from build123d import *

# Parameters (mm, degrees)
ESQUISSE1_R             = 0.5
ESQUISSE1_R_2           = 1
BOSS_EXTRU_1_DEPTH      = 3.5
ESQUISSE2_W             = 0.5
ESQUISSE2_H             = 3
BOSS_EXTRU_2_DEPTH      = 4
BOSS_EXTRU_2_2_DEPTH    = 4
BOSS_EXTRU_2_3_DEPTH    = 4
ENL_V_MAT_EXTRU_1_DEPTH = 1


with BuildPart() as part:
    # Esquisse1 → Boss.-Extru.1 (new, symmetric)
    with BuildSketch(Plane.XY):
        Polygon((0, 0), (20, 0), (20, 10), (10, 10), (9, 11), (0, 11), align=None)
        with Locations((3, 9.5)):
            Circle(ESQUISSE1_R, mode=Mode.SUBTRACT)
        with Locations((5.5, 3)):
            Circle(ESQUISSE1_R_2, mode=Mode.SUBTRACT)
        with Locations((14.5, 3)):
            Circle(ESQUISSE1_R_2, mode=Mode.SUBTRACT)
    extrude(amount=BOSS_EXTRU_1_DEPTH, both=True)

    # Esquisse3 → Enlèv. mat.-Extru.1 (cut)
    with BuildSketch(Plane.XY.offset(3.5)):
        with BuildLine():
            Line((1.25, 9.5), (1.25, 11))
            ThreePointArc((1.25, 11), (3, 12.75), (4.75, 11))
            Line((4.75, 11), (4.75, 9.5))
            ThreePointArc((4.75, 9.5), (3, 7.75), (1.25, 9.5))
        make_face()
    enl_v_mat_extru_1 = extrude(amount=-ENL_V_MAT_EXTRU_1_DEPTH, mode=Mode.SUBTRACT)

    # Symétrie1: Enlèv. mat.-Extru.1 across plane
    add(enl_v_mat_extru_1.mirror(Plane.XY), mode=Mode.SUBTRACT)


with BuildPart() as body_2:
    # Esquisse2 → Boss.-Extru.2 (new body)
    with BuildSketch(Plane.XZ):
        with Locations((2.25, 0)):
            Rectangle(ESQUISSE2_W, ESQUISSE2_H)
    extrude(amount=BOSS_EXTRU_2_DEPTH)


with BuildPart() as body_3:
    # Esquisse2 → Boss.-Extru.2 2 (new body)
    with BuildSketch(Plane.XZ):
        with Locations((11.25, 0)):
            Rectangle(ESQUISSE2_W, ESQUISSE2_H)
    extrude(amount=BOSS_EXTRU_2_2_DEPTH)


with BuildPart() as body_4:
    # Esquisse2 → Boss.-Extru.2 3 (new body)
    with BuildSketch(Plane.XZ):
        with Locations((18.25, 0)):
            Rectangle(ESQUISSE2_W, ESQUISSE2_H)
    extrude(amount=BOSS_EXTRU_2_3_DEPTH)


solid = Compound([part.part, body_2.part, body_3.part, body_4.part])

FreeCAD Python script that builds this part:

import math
import FreeCAD as App
import Part
import Sketcher

V = App.Vector
Q = App.Units.Quantity


def add_polygon(sketch, points):
    """Adds a closed chain of lines whose ends are joined by coincident constraints."""
    first, n = sketch.GeometryCount, len(points)
    for a, b in zip(points, points[1:] + points[:1]):
        sketch.addGeometry(Part.LineSegment(App.Vector(*a, 0), App.Vector(*b, 0)), False)
    for i in range(n):
        sketch.addConstraint(Sketcher.Constraint("Coincident", first + i, 2, first + (i + 1) % n, 1))

doc = App.newDocument("Part")
body = doc.addObject("PartDesign::Body", "Body")

# Sketch on XY plane
sketch1 = doc.addObject("Sketcher::SketchObject", "Sketch")
body.addObject(sketch1)
sketch1.AttachmentSupport = (doc.XY_Plane, [""])
sketch1.MapMode = "FlatFace"
add_polygon(sketch1, [(0, 0), (20, 0), (20, 10), (10, 10), (9, 11), (0, 11)])  # lines 0-5
sketch1.addGeometry(Part.Circle(V(5.5, 3, 0), V(0, 0, 1), 1), False)  # 6
sketch1.addGeometry(Part.Circle(V(14.5, 3, 0), V(0, 0, 1), 1), False)  # 7
sketch1.addGeometry(Part.Circle(V(3, 9.5, 0), V(0, 0, 1), 0.5), False)  # 8
sketch1.addConstraint([
    Sketcher.Constraint("Horizontal", 0),
    Sketcher.Constraint("Vertical", 1),
    Sketcher.Constraint("Horizontal", 2),
    Sketcher.Constraint("Horizontal", 4),
    Sketcher.Constraint("Vertical", 5),
    Sketcher.Constraint("Coincident", 5, 2, -1, 1),
    Sketcher.Constraint("Equal", 6, 7),
    Sketcher.Constraint("Horizontal", 6, 3, 7, 3),
    Sketcher.Constraint("Equal", 2, 1),
    Sketcher.Constraint("Diameter", 6, Q("2 mm")),
    Sketcher.Constraint("Diameter", 8, Q("1 mm")),
    Sketcher.Constraint("DistanceX", 0, 1, 0, 2, Q("20 mm")),
    Sketcher.Constraint("DistanceX", 2, 2, 2, 1, Q("10 mm")),
    Sketcher.Constraint("DistanceX", 4, 2, 4, 1, Q("9 mm")),
    Sketcher.Constraint("DistanceY", 5, 2, 5, 1, Q("11 mm")),
    Sketcher.Constraint("DistanceY", -1, 1, 6, 3, Q("3 mm")),
    Sketcher.Constraint("DistanceX", -1, 1, 8, 3, Q("3 mm")),
    Sketcher.Constraint("DistanceX", 6, 3, 7, 3, Q("9 mm")),
    Sketcher.Constraint("DistanceX", -1, 1, 6, 3, Q("5.5 mm")),
    Sketcher.Constraint("DistanceY", -1, 1, 8, 3, Q("9.5 mm")),
])
pad1 = doc.addObject("PartDesign::Pad", "Pad")
body.addObject(pad1)
pad1.Profile = sketch1
pad1.Length = 7
pad1.Midplane = True

# Sketch on XY plane
sketch2 = doc.addObject("Sketcher::SketchObject", "Sketch001")
body.addObject(sketch2)
sketch2.AttachmentSupport = (doc.XY_Plane, [""])
sketch2.MapMode = "FlatFace"
sketch2.AttachmentOffset = App.Placement(V(0, 0, 3.5), App.Rotation())
sketch2.addGeometry([
    Part.LineSegment(V(1.2, 11, 0), V(1.2, 9.5, 0)),
    Part.ArcOfCircle(Part.Circle(V(3, 9.5, 0), V(0, 0, 1), 1.8), math.radians(180), math.radians(360)),
    Part.LineSegment(V(4.8, 9.5, 0), V(4.8, 11, 0)),
    Part.ArcOfCircle(Part.Circle(V(3, 11, 0), V(0, 0, 1), 1.8), math.radians(0), math.radians(180)),
], False)
sketch2.addConstraint([
    Sketcher.Constraint("Tangent", 0, 2, 1, 1),
    Sketcher.Constraint("Tangent", 1, 2, 2, 1),
    Sketcher.Constraint("Tangent", 2, 2, 3, 1),
    Sketcher.Constraint("Tangent", 3, 2, 0, 1),
    Sketcher.Constraint("Vertical", 0),
    Sketcher.Constraint("Vertical", 2),
    Sketcher.Constraint("Radius", 1, Q("1.75 mm")),
    Sketcher.Constraint("DistanceY", 0, 2, 0, 1, Q("1.5 mm")),
    Sketcher.Constraint("DistanceX", -1, 1, 1, 3, Q("3 mm")),
    Sketcher.Constraint("DistanceY", -1, 1, 3, 3, Q("11 mm")),
])
pocket1 = doc.addObject("PartDesign::Pocket", "Pocket")
body.addObject(pocket1)
pocket1.Profile = sketch2
pocket1.Length = 1
doc.recompute()

mirrored = doc.addObject("PartDesign::Mirrored", "Mirrored")
body.addObject(mirrored)
mirrored.Originals = [pocket1]
mirrored.MirrorPlane = (doc.XY_Plane, [""])
body.Tip = mirrored
body2 = doc.addObject("PartDesign::Body", "Body001")

# Sketch on XZ plane
sketch3 = doc.addObject("Sketcher::SketchObject", "Sketch002")
body2.addObject(sketch3)
sketch3.AttachmentSupport = (doc.getObject("XZ_Plane001"), [""])
sketch3.MapMode = "FlatFace"
add_polygon(sketch3, [(2, 1.5), (2, -1.5), (2.5, -1.5), (2.5, 1.5)])  # lines 0-3
sketch3.addConstraint([
    Sketcher.Constraint("Vertical", 0),
    Sketcher.Constraint("Horizontal", 1),
    Sketcher.Constraint("Vertical", 2),
    Sketcher.Constraint("Horizontal", 3),
    Sketcher.Constraint("DistanceY", 0, 2, 0, 1, Q("3 mm")),
    Sketcher.Constraint("DistanceX", 1, 1, 1, 2, Q("0.5 mm")),
    Sketcher.Constraint("DistanceX", -1, 1, 0, 2, Q("2 mm")),
    Sketcher.Constraint("DistanceY", 0, 2, -1, 1, Q("1.5 mm")),
])
pad2 = doc.addObject("PartDesign::Pad", "Pad001")
body2.addObject(pad2)
pad2.Profile = sketch3
pad2.Length = 4
body3 = doc.addObject("PartDesign::Body", "Body002")

# Sketch on XZ plane
sketch4 = doc.addObject("Sketcher::SketchObject", "Sketch003")
body3.addObject(sketch4)
sketch4.AttachmentSupport = (doc.getObject("XZ_Plane002"), [""])
sketch4.MapMode = "FlatFace"
add_polygon(sketch4, [(11, 1.5), (11, -1.5), (11.5, -1.5), (11.5, 1.5)])  # lines 0-3
sketch4.addConstraint([
    Sketcher.Constraint("Vertical", 0),
    Sketcher.Constraint("Horizontal", 1),
    Sketcher.Constraint("Vertical", 2),
    Sketcher.Constraint("Horizontal", 3),
    Sketcher.Constraint("DistanceY", 0, 2, 0, 1, Q("3 mm")),
    Sketcher.Constraint("DistanceX", 1, 1, 1, 2, Q("0.5 mm")),
    Sketcher.Constraint("DistanceX", -1, 1, 0, 2, Q("11 mm")),
    Sketcher.Constraint("DistanceY", 0, 2, -1, 1, Q("1.5 mm")),
])
pad3 = doc.addObject("PartDesign::Pad", "Pad002")
body3.addObject(pad3)
pad3.Profile = sketch4
pad3.Length = 4
body4 = doc.addObject("PartDesign::Body", "Body003")

# Sketch on XZ plane
sketch5 = doc.addObject("Sketcher::SketchObject", "Sketch004")
body4.addObject(sketch5)
sketch5.AttachmentSupport = (doc.getObject("XZ_Plane003"), [""])
sketch5.MapMode = "FlatFace"
add_polygon(sketch5, [(18, 1.5), (18, -1.5), (18.5, -1.5), (18.5, 1.5)])  # lines 0-3
sketch5.addConstraint([
    Sketcher.Constraint("Vertical", 0),
    Sketcher.Constraint("Horizontal", 1),
    Sketcher.Constraint("Vertical", 2),
    Sketcher.Constraint("Horizontal", 3),
    Sketcher.Constraint("DistanceY", 0, 2, 0, 1, Q("3 mm")),
    Sketcher.Constraint("DistanceX", 1, 1, 1, 2, Q("0.5 mm")),
    Sketcher.Constraint("DistanceX", -1, 1, 0, 2, Q("18 mm")),
    Sketcher.Constraint("DistanceY", 0, 2, -1, 1, Q("1.5 mm")),
])
pad4 = doc.addObject("PartDesign::Pad", "Pad003")
body4.addObject(pad4)
pad4.Profile = sketch5
pad4.Length = 4

doc.recompute()
